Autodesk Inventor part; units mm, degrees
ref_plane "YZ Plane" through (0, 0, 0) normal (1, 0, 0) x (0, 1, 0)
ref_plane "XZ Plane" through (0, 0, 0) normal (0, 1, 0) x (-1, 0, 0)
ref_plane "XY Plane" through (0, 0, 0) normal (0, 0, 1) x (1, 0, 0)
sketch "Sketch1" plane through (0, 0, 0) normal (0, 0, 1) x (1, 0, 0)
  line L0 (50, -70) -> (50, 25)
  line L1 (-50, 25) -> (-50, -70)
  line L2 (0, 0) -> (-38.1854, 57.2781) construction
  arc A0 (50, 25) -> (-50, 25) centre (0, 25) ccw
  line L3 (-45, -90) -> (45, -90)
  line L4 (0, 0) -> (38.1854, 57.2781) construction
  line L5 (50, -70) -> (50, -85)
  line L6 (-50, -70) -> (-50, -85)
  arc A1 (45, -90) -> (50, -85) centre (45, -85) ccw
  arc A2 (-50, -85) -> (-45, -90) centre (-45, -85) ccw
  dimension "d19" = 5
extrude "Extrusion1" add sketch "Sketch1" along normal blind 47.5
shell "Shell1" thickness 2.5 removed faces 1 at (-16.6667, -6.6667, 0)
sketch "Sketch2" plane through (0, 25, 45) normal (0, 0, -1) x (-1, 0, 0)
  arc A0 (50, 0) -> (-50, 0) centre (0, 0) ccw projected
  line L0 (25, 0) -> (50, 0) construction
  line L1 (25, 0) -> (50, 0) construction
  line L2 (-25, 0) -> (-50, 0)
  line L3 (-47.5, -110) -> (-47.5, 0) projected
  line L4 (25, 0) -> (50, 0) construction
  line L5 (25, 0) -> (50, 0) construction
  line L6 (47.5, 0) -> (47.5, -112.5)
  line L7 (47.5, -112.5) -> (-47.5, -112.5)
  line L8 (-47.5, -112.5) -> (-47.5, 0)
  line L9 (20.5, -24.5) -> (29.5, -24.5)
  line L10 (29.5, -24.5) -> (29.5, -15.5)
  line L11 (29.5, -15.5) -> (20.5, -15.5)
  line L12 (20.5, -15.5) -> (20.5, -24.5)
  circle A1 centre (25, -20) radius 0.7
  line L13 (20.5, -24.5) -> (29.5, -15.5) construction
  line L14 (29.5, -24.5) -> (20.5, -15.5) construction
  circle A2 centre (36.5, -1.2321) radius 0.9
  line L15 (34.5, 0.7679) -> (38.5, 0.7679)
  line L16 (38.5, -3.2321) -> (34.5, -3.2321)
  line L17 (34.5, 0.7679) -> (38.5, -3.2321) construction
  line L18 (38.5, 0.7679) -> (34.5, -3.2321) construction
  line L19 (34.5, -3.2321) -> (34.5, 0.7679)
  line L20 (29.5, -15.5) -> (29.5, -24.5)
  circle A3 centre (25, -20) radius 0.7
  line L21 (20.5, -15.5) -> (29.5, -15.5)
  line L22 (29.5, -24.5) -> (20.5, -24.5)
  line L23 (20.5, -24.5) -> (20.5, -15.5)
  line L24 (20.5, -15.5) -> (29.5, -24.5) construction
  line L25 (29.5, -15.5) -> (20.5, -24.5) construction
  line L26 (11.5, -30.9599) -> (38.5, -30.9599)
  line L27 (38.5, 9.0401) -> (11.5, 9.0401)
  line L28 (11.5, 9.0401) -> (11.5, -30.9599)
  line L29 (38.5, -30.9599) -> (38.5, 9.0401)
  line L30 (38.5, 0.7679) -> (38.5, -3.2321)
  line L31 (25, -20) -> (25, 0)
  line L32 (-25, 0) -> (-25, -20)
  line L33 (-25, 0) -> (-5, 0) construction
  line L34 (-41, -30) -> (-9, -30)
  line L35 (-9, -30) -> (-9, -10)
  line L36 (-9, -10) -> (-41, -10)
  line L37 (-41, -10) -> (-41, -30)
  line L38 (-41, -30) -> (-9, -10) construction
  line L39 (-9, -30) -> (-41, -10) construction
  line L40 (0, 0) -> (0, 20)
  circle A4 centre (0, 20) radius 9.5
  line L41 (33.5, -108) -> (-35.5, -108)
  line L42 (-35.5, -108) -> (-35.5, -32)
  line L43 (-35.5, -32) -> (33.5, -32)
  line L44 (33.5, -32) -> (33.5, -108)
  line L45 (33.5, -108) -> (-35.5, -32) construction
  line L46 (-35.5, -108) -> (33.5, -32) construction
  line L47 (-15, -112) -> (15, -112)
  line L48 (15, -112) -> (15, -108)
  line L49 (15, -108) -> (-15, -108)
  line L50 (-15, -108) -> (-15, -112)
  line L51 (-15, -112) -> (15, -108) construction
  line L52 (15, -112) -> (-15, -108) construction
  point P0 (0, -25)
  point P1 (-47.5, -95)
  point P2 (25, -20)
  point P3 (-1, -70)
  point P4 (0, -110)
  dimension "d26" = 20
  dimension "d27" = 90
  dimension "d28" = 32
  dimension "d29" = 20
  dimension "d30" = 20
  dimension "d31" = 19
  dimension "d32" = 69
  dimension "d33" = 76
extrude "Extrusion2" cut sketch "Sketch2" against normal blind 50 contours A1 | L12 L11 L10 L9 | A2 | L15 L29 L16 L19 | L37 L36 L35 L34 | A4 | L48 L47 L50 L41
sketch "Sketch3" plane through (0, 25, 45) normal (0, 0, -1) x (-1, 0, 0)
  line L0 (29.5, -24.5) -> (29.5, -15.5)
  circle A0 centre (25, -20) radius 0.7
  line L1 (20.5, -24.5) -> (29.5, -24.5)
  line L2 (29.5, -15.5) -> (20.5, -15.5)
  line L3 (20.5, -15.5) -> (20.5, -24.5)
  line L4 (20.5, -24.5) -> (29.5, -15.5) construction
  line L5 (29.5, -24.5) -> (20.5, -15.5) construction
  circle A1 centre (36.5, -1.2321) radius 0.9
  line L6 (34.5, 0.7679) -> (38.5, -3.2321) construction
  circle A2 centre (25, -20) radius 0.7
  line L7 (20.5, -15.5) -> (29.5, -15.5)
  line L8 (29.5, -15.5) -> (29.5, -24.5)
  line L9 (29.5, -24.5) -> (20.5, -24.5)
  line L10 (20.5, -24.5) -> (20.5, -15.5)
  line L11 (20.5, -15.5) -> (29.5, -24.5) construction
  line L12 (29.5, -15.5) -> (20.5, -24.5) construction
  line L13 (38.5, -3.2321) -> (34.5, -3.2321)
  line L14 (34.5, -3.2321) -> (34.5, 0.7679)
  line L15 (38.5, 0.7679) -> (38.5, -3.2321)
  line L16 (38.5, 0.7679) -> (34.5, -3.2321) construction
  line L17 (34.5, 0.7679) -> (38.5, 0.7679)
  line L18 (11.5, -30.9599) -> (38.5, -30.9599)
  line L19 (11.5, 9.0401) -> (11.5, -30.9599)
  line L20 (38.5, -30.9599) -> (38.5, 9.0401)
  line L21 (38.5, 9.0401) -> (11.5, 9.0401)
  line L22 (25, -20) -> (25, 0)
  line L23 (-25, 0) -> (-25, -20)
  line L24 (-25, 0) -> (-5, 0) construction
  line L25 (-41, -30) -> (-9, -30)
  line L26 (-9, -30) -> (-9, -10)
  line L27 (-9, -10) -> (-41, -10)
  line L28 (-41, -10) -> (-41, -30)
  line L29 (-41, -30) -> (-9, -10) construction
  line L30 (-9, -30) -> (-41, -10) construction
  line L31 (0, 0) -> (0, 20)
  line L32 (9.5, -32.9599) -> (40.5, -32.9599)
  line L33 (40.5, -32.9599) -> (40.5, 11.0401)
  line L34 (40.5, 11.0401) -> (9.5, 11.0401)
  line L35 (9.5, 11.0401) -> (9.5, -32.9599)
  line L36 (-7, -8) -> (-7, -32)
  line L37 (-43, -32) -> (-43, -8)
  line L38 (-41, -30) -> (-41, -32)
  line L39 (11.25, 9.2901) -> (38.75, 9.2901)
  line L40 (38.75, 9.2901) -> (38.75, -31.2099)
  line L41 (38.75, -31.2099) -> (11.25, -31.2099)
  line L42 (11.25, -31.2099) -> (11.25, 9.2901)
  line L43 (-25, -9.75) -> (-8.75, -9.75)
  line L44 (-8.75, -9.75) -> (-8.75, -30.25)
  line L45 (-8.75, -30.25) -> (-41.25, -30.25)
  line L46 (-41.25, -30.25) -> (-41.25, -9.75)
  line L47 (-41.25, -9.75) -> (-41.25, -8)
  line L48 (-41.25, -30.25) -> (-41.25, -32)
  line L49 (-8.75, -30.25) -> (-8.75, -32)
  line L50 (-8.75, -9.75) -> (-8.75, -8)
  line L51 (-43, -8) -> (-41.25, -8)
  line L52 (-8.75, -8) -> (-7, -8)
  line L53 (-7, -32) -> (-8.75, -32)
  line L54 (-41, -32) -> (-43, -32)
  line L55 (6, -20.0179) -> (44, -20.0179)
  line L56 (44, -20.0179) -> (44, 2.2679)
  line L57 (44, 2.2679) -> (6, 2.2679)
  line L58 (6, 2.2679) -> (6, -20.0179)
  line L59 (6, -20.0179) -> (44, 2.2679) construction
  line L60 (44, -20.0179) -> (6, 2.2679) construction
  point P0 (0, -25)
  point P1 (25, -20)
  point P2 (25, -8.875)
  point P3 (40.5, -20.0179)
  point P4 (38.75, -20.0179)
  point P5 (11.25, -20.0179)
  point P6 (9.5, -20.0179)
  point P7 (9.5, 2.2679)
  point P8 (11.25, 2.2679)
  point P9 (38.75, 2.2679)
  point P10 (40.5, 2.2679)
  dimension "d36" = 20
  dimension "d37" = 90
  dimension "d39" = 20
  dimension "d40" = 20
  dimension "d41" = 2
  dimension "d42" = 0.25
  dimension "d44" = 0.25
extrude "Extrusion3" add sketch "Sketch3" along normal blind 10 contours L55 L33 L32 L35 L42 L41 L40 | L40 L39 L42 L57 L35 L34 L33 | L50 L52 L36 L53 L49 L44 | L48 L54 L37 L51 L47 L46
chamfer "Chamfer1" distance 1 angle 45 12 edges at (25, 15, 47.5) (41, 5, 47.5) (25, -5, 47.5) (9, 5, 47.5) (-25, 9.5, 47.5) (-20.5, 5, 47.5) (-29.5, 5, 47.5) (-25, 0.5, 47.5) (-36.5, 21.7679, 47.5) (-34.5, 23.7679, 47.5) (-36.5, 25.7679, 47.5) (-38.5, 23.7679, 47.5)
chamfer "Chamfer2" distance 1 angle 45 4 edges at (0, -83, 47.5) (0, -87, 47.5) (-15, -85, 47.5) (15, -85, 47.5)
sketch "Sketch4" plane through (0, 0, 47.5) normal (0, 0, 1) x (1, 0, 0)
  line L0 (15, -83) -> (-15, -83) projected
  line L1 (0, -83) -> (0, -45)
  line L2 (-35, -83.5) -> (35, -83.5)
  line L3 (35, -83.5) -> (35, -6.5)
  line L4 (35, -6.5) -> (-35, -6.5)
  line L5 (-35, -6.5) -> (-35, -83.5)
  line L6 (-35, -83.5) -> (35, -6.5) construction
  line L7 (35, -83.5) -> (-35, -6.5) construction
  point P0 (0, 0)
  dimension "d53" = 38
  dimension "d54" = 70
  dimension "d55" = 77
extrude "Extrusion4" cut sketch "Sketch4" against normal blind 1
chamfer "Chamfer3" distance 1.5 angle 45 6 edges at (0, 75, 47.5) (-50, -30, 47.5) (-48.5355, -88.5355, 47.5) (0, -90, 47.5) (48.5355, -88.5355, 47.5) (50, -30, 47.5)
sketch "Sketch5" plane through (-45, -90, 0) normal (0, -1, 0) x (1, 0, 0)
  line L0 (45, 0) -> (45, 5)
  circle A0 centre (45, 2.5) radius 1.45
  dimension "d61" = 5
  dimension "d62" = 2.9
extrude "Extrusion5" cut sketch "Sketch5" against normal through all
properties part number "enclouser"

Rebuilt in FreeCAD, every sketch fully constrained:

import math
import FreeCAD as App
import Part
import Sketcher
from FreeCAD import Vector
Q = App.Units.Quantity


def edges_at(feature, points):
    """Names of the edges that pass closest to the given points."""
    edges = feature.Shape.Edges
    near = lambda p: min(range(len(edges)), key=lambda i: edges[i].distToShape(Part.Vertex(*p))[0])
    return sorted({f"Edge{near(p) + 1}" for p in points})


def faces_at(feature, points):
    """Names of the faces that lie closest to the given points."""
    faces = feature.Shape.Faces
    near = lambda p: min(range(len(faces)), key=lambda i: faces[i].distToShape(Part.Vertex(*p))[0])
    return sorted({f"Face{near(p) + 1}" for p in points})


def add_polygon(sketch, points):
    """Adds a closed chain of lines whose ends are joined by coincident constraints."""
    first, n = sketch.GeometryCount, len(points)
    for a, b in zip(points, points[1:] + points[:1]):
        sketch.addGeometry(Part.LineSegment(App.Vector(*a, 0), App.Vector(*b, 0)), False)
    for i in range(n):
        sketch.addConstraint(Sketcher.Constraint("Coincident", first + i, 2, first + (i + 1) % n, 1))

doc = App.newDocument("Part")
body = doc.addObject("PartDesign::Body", "Body")

# Sketch on XY plane
sketch1 = body.newObject("Sketcher::SketchObject", "Sketch")
sketch1.AttachmentSupport = (doc.getObject("XY_Plane"), [""])
sketch1.MapMode = "FlatFace"
sketch1.addGeometry([
    Part.LineSegment(Vector(50, -85, 0), Vector(50, 25, 0)),  # 0
    Part.ArcOfCircle(Part.Circle(Vector(0, 25, 0), Vector(0, 0, 1), 50), math.radians(0), math.radians(180)),  # 1
    Part.LineSegment(Vector(-50, 25, 0), Vector(-50, -85, 0)),  # 2
    Part.ArcOfCircle(Part.Circle(Vector(-45, -85, 0), Vector(0, 0, 1), 5), math.radians(180), math.radians(270)),  # 3
    Part.LineSegment(Vector(-45, -90, 0), Vector(45, -90, 0)),  # 4
    Part.ArcOfCircle(Part.Circle(Vector(45, -85, 0), Vector(0, 0, 1), 5), math.radians(-90), math.radians(0)),  # 5
], False)
sketch1.addConstraint([
    Sketcher.Constraint("Tangent", 0, 2, 1, 1),
    Sketcher.Constraint("Tangent", 1, 2, 2, 1),
    Sketcher.Constraint("Tangent", 2, 2, 3, 1),
    Sketcher.Constraint("Tangent", 3, 2, 4, 1),
    Sketcher.Constraint("Tangent", 4, 2, 5, 1),
    Sketcher.Constraint("Tangent", 5, 2, 0, 1),
    Sketcher.Constraint("Vertical", 0),
    Sketcher.Constraint("Vertical", 2),
    Sketcher.Constraint("Horizontal", 4),
    Sketcher.Constraint("Equal", 3, 5),
    Sketcher.Constraint("PointOnObject", 1, 3, -2),
    Sketcher.Constraint("Radius", 3, Q("5 mm")),
    Sketcher.Constraint("Radius", 1, Q("50 mm")),
    Sketcher.Constraint("DistanceY", 0, 1, 0, 2, Q("110 mm")),
    Sketcher.Constraint("DistanceY", -1, 1, 1, 3, Q("25 mm")),
])
pad1 = body.newObject("PartDesign::Pad", "Pad")
pad1.Profile = sketch1
pad1.Length = 47.5
doc.recompute()

thickness = body.newObject("PartDesign::Thickness", "Thickness")
thickness.Base = (pad1, faces_at(pad1, [(-16.667, -6.667, 0)]))
thickness.Value = 2.5
thickness.Reversed = True
thickness.Join = "Intersection"

# Sketch on XY plane
sketch2 = body.newObject("Sketcher::SketchObject", "Sketch001")
sketch2.AttachmentSupport = (doc.getObject("XY_Plane"), [""])
sketch2.MapMode = "FlatFace"
sketch2.AttachmentOffset = App.Placement(Vector(0, 0, 45), App.Rotation())
add_polygon(sketch2, [(-20.5, 9.5), (-20.5, 0.5), (-29.5, 0.5), (-29.5, 9.5), (-25, 9.5)])  # lines 0-4
add_polygon(sketch2, [(-38.5, 25.8), (-34.5, 25.8), (-34.5, 21.8), (-38.5, 21.8)])  # lines 5-8
add_polygon(sketch2, [(41, 15), (41, -5), (9, -5), (9, 15)])  # lines 9-12
sketch2.addGeometry(Part.Circle(Vector(0, 45, 0), Vector(0, 0, 1), 9.5), False)  # 13
add_polygon(sketch2, [(-15, -87), (-15, -83), (15, -83), (15, -87)])  # lines 14-17
sketch2.addConstraint([
    Sketcher.Constraint("Vertical", 0),
    Sketcher.Constraint("Horizontal", 1),
    Sketcher.Constraint("Vertical", 2),
    Sketcher.Constraint("Horizontal", 3),
    Sketcher.Constraint("Horizontal", 4),
    Sketcher.Constraint("Horizontal", 5),
    Sketcher.Constraint("Vertical", 6),
    Sketcher.Constraint("Horizontal", 7),
    Sketcher.Constraint("Vertical", 8),
    Sketcher.Constraint("Vertical", 9),
    Sketcher.Constraint("Horizontal", 10),
    Sketcher.Constraint("Vertical", 11),
    Sketcher.Constraint("Horizontal", 12),
    Sketcher.Constraint("Vertical", 14),
    Sketcher.Constraint("Horizontal", 15),
    Sketcher.Constraint("Vertical", 16),
    Sketcher.Constraint("Horizontal", 17),
    Sketcher.Constraint("PointOnObject", 13, 3, -2),
    Sketcher.Constraint("Equal", 3, 4),
    Sketcher.Constraint("Equal", 1, 0),
    Sketcher.Constraint("Equal", 7, 6),
    Sketcher.Constraint("Equal", 8, 14),
    Sketcher.Constraint("Diameter", 13, Q("19 mm")),
    Sketcher.Constraint("DistanceX", 10, 2, 10, 1, Q("32 mm")),
    Sketcher.Constraint("DistanceY", 9, 2, 9, 1, Q("20 mm")),
    Sketcher.Constraint("DistanceX", 1, 2, 1, 1, Q("9 mm")),
    Sketcher.Constraint("DistanceX", 5, 1, 5, 2, Q("4 mm")),
    Sketcher.Constraint("DistanceX", 15, 1, 15, 2, Q("30 mm")),
    Sketcher.Constraint("DistanceY", -1, 1, 13, 3, Q("45 mm")),
    Sketcher.Constraint("DistanceX", 3, 2, -1, 1, Q("25 mm")),
    Sketcher.Constraint("DistanceX", -1, 1, 9, 2, Q("41 mm")),
    Sketcher.Constraint("DistanceY", 9, 2, -1, 1, Q("5 mm")),
    Sketcher.Constraint("DistanceX", 14, 2, -1, 1, Q("15 mm")),
    Sketcher.Constraint("DistanceY", 14, 2, -1, 1, Q("83 mm")),
    Sketcher.Constraint("DistanceX", 5, 2, 2, 2, Q("5 mm")),
    Sketcher.Constraint("DistanceY", -1, 1, 0, 2, Q("0.5 mm")),
    Sketcher.Constraint("DistanceY", -1, 1, 5, 2, Q("25.768 mm")),
])
pocket1 = body.newObject("PartDesign::Pocket", "Pocket")
pocket1.Profile = sketch2
pocket1.Length = 50
pocket1.Reversed = True

# Sketch on XY plane
sketch3 = body.newObject("Sketcher::SketchObject", "Sketch002")
sketch3.AttachmentSupport = (doc.getObject("XY_Plane"), [""])
sketch3.MapMode = "FlatFace"
sketch3.AttachmentOffset = App.Placement(Vector(0, 0, 45), App.Rotation())
add_polygon(sketch3, [(-40.5, 5), (-38.8, 5), (-38.8, -6.2), (-11.2, -6.2), (-11.2, 5), (-9.5, 5), (-9.5, -8), (-40.5, -8)])  # lines 0-7
add_polygon(sketch3, [(-38.8, 34.3), (-38.8, 27.3), (-40.5, 27.3), (-40.5, 36), (-9.5, 36), (-9.5, 27.3), (-11.2, 27.3), (-11.2, 34.3)])  # lines 8-15
add_polygon(sketch3, [(8.8, 17), (8.8, -7), (7, -7), (7, 17)])  # lines 16-19
add_polygon(sketch3, [(41.2, -7), (41.2, 17), (43, 17), (43, -7)])  # lines 20-23
sketch3.addConstraint([
    Sketcher.Constraint("Horizontal", 0),
    Sketcher.Constraint("Vertical", 1),
    Sketcher.Constraint("Horizontal", 2),
    Sketcher.Constraint("Vertical", 3),
    Sketcher.Constraint("Horizontal", 4),
    Sketcher.Constraint("Vertical", 5),
    Sketcher.Constraint("Horizontal", 6),
    Sketcher.Constraint("Vertical", 7),
    Sketcher.Constraint("Vertical", 8),
    Sketcher.Constraint("Horizontal", 9),
    Sketcher.Constraint("Vertical", 10),
    Sketcher.Constraint("Horizontal", 11),
    Sketcher.Constraint("Vertical", 12),
    Sketcher.Constraint("Horizontal", 13),
    Sketcher.Constraint("Vertical", 14),
    Sketcher.Constraint("Horizontal", 15),
    Sketcher.Constraint("Vertical", 16),
    Sketcher.Constraint("Horizontal", 17),
    Sketcher.Constraint("Vertical", 18),
    Sketcher.Constraint("Horizontal", 19),
    Sketcher.Constraint("Vertical", 20),
    Sketcher.Constraint("Horizontal", 21),
    Sketcher.Constraint("Vertical", 22),
    Sketcher.Constraint("Horizontal", 23),
    Sketcher.Constraint("Horizontal", 0, 2, 3, 2),
    Sketcher.Constraint("Horizontal", 9, 2, 12, 2),
    Sketcher.Constraint("Horizontal", 19, 2, 20, 2),
    Sketcher.Constraint("Horizontal", 17, 2, 22, 2),
    Sketcher.Constraint("Vertical", 1, 2, 8, 2),
    Sketcher.Constraint("Vertical", 7, 2, 9, 2),
    Sketcher.Constraint("Vertical", 5, 2, 11, 2),
    Sketcher.Constraint("Vertical", 3, 2, 13, 2),
    Sketcher.Constraint("Equal", 0, 4),
    Sketcher.Constraint("Equal", 13, 17),
    Sketcher.Constraint("Equal", 19, 21),
    Sketcher.Constraint("DistanceX", 2, 2, 16, 2, Q("20 mm")),
    Sketcher.Constraint("DistanceX", 6, 2, 6, 1, Q("31 mm")),
    Sketcher.Constraint("DistanceY", 16, 2, 16, 1, Q("24 mm")),
    Sketcher.Constraint("DistanceX", 2, 1, 2, 2, Q("27.5 mm")),
    Sketcher.Constraint("DistanceY", 16, 2, -1, 1, Q("7 mm")),
    Sketcher.Constraint("DistanceX", -1, 1, 17, 2, Q("7 mm")),
    Sketcher.Constraint("DistanceX", -1, 1, 21, 2, Q("43 mm")),
    Sketcher.Constraint("DistanceY", 1, 2, 1, 1, Q("11.192 mm")),
    Sketcher.Constraint("DistanceY", 5, 2, 5, 1, Q("12.942 mm")),
    Sketcher.Constraint("DistanceY", 1, 2, -1, 1, Q("6.21 mm")),
    Sketcher.Constraint("DistanceY", -1, 1, 10, 2, Q("36.04 mm")),
    Sketcher.Constraint("DistanceY", -1, 1, 14, 2, Q("34.29 mm")),
    Sketcher.Constraint("DistanceY", 8, 2, 8, 1, Q("7.0222 mm")),
])
pad2 = body.newObject("PartDesign::Pad", "Pad001")
pad2.Profile = sketch3
pad2.Length = 10
pad2.Reversed = True
doc.recompute()

chamfer = body.newObject("PartDesign::Chamfer", "Chamfer")
chamfer.Base = (pad2, edges_at(pad2, [
    (25, 15, 47.5),
    (41, 5, 47.5),
    (25, -5, 47.5),
    (9, 5, 47.5),
    (-25, 9.5, 47.5),
    (-20.5, 5, 47.5),
    (-29.5, 5, 47.5),
    (-25, 0.5, 47.5),
    (-36.5, 21.768, 47.5),
    (-34.5, 23.768, 47.5),
    (-36.5, 25.768, 47.5),
    (-38.5, 23.768, 47.5),
]))
chamfer.Size = 1
doc.recompute()

chamfer2 = body.newObject("PartDesign::Chamfer", "Chamfer001")
chamfer2.Base = (chamfer, edges_at(chamfer, [
    (0, -83, 47.5),
    (0, -87, 47.5),
    (-15, -85, 47.5),
    (15, -85, 47.5),
]))
chamfer2.Size = 1

# Sketch on XY plane
sketch4 = body.newObject("Sketcher::SketchObject", "Sketch003")
sketch4.AttachmentSupport = (doc.getObject("XY_Plane"), [""])
sketch4.MapMode = "FlatFace"
sketch4.AttachmentOffset = App.Placement(Vector(0, 0, 47.5), App.Rotation())
add_polygon(sketch4, [(-35, -6), (-35, -84), (35, -84), (35, -6)])  # lines 0-3
sketch4.addConstraint([
    Sketcher.Constraint("Vertical", 0),
    Sketcher.Constraint("Horizontal", 1),
    Sketcher.Constraint("Vertical", 2),
    Sketcher.Constraint("Horizontal", 3),
    Sketcher.Constraint("DistanceX", 1, 1, 1, 2, Q("70 mm")),
    Sketcher.Constraint("DistanceY", 0, 2, 0, 1, Q("77 mm")),
    Sketcher.Constraint("DistanceX", 0, 2, -1, 1, Q("35 mm")),
    Sketcher.Constraint("DistanceY", 0, 2, -1, 1, Q("83.5 mm")),
])
pocket2 = body.newObject("PartDesign::Pocket", "Pocket001")
pocket2.Profile = sketch4
pocket2.Length = 1
doc.recompute()

chamfer3 = body.newObject("PartDesign::Chamfer", "Chamfer002")
chamfer3.Base = (pocket2, edges_at(pocket2, [
    (0, 75, 47.5),
    (-50, -30, 47.5),
    (-48.535, -88.535, 47.5),
    (0, -90, 47.5),
    (48.535, -88.535, 47.5),
    (50, -30, 47.5),
]))
chamfer3.Size = 1.5

# Sketch on XZ plane
sketch5 = body.newObject("Sketcher::SketchObject", "Sketch004")
sketch5.AttachmentSupport = (doc.getObject("XZ_Plane"), [""])
sketch5.MapMode = "FlatFace"
sketch5.AttachmentOffset = App.Placement(Vector(0, 0, 90), App.Rotation())
sketch5.addGeometry(Part.Circle(Vector(0, 2.5, 0), Vector(0, 0, 1), 1.4), False)
sketch5.addConstraint([
    Sketcher.Constraint("PointOnObject", 0, 3, -2),
    Sketcher.Constraint("Diameter", 0, Q("2.9 mm")),
    Sketcher.Constraint("DistanceY", -1, 1, 0, 3, Q("2.5 mm")),
])
pocket3 = body.newObject("PartDesign::Pocket", "Pocket002")
pocket3.Profile = sketch5
pocket3.Type = "ThroughAll"

doc.recompute()
